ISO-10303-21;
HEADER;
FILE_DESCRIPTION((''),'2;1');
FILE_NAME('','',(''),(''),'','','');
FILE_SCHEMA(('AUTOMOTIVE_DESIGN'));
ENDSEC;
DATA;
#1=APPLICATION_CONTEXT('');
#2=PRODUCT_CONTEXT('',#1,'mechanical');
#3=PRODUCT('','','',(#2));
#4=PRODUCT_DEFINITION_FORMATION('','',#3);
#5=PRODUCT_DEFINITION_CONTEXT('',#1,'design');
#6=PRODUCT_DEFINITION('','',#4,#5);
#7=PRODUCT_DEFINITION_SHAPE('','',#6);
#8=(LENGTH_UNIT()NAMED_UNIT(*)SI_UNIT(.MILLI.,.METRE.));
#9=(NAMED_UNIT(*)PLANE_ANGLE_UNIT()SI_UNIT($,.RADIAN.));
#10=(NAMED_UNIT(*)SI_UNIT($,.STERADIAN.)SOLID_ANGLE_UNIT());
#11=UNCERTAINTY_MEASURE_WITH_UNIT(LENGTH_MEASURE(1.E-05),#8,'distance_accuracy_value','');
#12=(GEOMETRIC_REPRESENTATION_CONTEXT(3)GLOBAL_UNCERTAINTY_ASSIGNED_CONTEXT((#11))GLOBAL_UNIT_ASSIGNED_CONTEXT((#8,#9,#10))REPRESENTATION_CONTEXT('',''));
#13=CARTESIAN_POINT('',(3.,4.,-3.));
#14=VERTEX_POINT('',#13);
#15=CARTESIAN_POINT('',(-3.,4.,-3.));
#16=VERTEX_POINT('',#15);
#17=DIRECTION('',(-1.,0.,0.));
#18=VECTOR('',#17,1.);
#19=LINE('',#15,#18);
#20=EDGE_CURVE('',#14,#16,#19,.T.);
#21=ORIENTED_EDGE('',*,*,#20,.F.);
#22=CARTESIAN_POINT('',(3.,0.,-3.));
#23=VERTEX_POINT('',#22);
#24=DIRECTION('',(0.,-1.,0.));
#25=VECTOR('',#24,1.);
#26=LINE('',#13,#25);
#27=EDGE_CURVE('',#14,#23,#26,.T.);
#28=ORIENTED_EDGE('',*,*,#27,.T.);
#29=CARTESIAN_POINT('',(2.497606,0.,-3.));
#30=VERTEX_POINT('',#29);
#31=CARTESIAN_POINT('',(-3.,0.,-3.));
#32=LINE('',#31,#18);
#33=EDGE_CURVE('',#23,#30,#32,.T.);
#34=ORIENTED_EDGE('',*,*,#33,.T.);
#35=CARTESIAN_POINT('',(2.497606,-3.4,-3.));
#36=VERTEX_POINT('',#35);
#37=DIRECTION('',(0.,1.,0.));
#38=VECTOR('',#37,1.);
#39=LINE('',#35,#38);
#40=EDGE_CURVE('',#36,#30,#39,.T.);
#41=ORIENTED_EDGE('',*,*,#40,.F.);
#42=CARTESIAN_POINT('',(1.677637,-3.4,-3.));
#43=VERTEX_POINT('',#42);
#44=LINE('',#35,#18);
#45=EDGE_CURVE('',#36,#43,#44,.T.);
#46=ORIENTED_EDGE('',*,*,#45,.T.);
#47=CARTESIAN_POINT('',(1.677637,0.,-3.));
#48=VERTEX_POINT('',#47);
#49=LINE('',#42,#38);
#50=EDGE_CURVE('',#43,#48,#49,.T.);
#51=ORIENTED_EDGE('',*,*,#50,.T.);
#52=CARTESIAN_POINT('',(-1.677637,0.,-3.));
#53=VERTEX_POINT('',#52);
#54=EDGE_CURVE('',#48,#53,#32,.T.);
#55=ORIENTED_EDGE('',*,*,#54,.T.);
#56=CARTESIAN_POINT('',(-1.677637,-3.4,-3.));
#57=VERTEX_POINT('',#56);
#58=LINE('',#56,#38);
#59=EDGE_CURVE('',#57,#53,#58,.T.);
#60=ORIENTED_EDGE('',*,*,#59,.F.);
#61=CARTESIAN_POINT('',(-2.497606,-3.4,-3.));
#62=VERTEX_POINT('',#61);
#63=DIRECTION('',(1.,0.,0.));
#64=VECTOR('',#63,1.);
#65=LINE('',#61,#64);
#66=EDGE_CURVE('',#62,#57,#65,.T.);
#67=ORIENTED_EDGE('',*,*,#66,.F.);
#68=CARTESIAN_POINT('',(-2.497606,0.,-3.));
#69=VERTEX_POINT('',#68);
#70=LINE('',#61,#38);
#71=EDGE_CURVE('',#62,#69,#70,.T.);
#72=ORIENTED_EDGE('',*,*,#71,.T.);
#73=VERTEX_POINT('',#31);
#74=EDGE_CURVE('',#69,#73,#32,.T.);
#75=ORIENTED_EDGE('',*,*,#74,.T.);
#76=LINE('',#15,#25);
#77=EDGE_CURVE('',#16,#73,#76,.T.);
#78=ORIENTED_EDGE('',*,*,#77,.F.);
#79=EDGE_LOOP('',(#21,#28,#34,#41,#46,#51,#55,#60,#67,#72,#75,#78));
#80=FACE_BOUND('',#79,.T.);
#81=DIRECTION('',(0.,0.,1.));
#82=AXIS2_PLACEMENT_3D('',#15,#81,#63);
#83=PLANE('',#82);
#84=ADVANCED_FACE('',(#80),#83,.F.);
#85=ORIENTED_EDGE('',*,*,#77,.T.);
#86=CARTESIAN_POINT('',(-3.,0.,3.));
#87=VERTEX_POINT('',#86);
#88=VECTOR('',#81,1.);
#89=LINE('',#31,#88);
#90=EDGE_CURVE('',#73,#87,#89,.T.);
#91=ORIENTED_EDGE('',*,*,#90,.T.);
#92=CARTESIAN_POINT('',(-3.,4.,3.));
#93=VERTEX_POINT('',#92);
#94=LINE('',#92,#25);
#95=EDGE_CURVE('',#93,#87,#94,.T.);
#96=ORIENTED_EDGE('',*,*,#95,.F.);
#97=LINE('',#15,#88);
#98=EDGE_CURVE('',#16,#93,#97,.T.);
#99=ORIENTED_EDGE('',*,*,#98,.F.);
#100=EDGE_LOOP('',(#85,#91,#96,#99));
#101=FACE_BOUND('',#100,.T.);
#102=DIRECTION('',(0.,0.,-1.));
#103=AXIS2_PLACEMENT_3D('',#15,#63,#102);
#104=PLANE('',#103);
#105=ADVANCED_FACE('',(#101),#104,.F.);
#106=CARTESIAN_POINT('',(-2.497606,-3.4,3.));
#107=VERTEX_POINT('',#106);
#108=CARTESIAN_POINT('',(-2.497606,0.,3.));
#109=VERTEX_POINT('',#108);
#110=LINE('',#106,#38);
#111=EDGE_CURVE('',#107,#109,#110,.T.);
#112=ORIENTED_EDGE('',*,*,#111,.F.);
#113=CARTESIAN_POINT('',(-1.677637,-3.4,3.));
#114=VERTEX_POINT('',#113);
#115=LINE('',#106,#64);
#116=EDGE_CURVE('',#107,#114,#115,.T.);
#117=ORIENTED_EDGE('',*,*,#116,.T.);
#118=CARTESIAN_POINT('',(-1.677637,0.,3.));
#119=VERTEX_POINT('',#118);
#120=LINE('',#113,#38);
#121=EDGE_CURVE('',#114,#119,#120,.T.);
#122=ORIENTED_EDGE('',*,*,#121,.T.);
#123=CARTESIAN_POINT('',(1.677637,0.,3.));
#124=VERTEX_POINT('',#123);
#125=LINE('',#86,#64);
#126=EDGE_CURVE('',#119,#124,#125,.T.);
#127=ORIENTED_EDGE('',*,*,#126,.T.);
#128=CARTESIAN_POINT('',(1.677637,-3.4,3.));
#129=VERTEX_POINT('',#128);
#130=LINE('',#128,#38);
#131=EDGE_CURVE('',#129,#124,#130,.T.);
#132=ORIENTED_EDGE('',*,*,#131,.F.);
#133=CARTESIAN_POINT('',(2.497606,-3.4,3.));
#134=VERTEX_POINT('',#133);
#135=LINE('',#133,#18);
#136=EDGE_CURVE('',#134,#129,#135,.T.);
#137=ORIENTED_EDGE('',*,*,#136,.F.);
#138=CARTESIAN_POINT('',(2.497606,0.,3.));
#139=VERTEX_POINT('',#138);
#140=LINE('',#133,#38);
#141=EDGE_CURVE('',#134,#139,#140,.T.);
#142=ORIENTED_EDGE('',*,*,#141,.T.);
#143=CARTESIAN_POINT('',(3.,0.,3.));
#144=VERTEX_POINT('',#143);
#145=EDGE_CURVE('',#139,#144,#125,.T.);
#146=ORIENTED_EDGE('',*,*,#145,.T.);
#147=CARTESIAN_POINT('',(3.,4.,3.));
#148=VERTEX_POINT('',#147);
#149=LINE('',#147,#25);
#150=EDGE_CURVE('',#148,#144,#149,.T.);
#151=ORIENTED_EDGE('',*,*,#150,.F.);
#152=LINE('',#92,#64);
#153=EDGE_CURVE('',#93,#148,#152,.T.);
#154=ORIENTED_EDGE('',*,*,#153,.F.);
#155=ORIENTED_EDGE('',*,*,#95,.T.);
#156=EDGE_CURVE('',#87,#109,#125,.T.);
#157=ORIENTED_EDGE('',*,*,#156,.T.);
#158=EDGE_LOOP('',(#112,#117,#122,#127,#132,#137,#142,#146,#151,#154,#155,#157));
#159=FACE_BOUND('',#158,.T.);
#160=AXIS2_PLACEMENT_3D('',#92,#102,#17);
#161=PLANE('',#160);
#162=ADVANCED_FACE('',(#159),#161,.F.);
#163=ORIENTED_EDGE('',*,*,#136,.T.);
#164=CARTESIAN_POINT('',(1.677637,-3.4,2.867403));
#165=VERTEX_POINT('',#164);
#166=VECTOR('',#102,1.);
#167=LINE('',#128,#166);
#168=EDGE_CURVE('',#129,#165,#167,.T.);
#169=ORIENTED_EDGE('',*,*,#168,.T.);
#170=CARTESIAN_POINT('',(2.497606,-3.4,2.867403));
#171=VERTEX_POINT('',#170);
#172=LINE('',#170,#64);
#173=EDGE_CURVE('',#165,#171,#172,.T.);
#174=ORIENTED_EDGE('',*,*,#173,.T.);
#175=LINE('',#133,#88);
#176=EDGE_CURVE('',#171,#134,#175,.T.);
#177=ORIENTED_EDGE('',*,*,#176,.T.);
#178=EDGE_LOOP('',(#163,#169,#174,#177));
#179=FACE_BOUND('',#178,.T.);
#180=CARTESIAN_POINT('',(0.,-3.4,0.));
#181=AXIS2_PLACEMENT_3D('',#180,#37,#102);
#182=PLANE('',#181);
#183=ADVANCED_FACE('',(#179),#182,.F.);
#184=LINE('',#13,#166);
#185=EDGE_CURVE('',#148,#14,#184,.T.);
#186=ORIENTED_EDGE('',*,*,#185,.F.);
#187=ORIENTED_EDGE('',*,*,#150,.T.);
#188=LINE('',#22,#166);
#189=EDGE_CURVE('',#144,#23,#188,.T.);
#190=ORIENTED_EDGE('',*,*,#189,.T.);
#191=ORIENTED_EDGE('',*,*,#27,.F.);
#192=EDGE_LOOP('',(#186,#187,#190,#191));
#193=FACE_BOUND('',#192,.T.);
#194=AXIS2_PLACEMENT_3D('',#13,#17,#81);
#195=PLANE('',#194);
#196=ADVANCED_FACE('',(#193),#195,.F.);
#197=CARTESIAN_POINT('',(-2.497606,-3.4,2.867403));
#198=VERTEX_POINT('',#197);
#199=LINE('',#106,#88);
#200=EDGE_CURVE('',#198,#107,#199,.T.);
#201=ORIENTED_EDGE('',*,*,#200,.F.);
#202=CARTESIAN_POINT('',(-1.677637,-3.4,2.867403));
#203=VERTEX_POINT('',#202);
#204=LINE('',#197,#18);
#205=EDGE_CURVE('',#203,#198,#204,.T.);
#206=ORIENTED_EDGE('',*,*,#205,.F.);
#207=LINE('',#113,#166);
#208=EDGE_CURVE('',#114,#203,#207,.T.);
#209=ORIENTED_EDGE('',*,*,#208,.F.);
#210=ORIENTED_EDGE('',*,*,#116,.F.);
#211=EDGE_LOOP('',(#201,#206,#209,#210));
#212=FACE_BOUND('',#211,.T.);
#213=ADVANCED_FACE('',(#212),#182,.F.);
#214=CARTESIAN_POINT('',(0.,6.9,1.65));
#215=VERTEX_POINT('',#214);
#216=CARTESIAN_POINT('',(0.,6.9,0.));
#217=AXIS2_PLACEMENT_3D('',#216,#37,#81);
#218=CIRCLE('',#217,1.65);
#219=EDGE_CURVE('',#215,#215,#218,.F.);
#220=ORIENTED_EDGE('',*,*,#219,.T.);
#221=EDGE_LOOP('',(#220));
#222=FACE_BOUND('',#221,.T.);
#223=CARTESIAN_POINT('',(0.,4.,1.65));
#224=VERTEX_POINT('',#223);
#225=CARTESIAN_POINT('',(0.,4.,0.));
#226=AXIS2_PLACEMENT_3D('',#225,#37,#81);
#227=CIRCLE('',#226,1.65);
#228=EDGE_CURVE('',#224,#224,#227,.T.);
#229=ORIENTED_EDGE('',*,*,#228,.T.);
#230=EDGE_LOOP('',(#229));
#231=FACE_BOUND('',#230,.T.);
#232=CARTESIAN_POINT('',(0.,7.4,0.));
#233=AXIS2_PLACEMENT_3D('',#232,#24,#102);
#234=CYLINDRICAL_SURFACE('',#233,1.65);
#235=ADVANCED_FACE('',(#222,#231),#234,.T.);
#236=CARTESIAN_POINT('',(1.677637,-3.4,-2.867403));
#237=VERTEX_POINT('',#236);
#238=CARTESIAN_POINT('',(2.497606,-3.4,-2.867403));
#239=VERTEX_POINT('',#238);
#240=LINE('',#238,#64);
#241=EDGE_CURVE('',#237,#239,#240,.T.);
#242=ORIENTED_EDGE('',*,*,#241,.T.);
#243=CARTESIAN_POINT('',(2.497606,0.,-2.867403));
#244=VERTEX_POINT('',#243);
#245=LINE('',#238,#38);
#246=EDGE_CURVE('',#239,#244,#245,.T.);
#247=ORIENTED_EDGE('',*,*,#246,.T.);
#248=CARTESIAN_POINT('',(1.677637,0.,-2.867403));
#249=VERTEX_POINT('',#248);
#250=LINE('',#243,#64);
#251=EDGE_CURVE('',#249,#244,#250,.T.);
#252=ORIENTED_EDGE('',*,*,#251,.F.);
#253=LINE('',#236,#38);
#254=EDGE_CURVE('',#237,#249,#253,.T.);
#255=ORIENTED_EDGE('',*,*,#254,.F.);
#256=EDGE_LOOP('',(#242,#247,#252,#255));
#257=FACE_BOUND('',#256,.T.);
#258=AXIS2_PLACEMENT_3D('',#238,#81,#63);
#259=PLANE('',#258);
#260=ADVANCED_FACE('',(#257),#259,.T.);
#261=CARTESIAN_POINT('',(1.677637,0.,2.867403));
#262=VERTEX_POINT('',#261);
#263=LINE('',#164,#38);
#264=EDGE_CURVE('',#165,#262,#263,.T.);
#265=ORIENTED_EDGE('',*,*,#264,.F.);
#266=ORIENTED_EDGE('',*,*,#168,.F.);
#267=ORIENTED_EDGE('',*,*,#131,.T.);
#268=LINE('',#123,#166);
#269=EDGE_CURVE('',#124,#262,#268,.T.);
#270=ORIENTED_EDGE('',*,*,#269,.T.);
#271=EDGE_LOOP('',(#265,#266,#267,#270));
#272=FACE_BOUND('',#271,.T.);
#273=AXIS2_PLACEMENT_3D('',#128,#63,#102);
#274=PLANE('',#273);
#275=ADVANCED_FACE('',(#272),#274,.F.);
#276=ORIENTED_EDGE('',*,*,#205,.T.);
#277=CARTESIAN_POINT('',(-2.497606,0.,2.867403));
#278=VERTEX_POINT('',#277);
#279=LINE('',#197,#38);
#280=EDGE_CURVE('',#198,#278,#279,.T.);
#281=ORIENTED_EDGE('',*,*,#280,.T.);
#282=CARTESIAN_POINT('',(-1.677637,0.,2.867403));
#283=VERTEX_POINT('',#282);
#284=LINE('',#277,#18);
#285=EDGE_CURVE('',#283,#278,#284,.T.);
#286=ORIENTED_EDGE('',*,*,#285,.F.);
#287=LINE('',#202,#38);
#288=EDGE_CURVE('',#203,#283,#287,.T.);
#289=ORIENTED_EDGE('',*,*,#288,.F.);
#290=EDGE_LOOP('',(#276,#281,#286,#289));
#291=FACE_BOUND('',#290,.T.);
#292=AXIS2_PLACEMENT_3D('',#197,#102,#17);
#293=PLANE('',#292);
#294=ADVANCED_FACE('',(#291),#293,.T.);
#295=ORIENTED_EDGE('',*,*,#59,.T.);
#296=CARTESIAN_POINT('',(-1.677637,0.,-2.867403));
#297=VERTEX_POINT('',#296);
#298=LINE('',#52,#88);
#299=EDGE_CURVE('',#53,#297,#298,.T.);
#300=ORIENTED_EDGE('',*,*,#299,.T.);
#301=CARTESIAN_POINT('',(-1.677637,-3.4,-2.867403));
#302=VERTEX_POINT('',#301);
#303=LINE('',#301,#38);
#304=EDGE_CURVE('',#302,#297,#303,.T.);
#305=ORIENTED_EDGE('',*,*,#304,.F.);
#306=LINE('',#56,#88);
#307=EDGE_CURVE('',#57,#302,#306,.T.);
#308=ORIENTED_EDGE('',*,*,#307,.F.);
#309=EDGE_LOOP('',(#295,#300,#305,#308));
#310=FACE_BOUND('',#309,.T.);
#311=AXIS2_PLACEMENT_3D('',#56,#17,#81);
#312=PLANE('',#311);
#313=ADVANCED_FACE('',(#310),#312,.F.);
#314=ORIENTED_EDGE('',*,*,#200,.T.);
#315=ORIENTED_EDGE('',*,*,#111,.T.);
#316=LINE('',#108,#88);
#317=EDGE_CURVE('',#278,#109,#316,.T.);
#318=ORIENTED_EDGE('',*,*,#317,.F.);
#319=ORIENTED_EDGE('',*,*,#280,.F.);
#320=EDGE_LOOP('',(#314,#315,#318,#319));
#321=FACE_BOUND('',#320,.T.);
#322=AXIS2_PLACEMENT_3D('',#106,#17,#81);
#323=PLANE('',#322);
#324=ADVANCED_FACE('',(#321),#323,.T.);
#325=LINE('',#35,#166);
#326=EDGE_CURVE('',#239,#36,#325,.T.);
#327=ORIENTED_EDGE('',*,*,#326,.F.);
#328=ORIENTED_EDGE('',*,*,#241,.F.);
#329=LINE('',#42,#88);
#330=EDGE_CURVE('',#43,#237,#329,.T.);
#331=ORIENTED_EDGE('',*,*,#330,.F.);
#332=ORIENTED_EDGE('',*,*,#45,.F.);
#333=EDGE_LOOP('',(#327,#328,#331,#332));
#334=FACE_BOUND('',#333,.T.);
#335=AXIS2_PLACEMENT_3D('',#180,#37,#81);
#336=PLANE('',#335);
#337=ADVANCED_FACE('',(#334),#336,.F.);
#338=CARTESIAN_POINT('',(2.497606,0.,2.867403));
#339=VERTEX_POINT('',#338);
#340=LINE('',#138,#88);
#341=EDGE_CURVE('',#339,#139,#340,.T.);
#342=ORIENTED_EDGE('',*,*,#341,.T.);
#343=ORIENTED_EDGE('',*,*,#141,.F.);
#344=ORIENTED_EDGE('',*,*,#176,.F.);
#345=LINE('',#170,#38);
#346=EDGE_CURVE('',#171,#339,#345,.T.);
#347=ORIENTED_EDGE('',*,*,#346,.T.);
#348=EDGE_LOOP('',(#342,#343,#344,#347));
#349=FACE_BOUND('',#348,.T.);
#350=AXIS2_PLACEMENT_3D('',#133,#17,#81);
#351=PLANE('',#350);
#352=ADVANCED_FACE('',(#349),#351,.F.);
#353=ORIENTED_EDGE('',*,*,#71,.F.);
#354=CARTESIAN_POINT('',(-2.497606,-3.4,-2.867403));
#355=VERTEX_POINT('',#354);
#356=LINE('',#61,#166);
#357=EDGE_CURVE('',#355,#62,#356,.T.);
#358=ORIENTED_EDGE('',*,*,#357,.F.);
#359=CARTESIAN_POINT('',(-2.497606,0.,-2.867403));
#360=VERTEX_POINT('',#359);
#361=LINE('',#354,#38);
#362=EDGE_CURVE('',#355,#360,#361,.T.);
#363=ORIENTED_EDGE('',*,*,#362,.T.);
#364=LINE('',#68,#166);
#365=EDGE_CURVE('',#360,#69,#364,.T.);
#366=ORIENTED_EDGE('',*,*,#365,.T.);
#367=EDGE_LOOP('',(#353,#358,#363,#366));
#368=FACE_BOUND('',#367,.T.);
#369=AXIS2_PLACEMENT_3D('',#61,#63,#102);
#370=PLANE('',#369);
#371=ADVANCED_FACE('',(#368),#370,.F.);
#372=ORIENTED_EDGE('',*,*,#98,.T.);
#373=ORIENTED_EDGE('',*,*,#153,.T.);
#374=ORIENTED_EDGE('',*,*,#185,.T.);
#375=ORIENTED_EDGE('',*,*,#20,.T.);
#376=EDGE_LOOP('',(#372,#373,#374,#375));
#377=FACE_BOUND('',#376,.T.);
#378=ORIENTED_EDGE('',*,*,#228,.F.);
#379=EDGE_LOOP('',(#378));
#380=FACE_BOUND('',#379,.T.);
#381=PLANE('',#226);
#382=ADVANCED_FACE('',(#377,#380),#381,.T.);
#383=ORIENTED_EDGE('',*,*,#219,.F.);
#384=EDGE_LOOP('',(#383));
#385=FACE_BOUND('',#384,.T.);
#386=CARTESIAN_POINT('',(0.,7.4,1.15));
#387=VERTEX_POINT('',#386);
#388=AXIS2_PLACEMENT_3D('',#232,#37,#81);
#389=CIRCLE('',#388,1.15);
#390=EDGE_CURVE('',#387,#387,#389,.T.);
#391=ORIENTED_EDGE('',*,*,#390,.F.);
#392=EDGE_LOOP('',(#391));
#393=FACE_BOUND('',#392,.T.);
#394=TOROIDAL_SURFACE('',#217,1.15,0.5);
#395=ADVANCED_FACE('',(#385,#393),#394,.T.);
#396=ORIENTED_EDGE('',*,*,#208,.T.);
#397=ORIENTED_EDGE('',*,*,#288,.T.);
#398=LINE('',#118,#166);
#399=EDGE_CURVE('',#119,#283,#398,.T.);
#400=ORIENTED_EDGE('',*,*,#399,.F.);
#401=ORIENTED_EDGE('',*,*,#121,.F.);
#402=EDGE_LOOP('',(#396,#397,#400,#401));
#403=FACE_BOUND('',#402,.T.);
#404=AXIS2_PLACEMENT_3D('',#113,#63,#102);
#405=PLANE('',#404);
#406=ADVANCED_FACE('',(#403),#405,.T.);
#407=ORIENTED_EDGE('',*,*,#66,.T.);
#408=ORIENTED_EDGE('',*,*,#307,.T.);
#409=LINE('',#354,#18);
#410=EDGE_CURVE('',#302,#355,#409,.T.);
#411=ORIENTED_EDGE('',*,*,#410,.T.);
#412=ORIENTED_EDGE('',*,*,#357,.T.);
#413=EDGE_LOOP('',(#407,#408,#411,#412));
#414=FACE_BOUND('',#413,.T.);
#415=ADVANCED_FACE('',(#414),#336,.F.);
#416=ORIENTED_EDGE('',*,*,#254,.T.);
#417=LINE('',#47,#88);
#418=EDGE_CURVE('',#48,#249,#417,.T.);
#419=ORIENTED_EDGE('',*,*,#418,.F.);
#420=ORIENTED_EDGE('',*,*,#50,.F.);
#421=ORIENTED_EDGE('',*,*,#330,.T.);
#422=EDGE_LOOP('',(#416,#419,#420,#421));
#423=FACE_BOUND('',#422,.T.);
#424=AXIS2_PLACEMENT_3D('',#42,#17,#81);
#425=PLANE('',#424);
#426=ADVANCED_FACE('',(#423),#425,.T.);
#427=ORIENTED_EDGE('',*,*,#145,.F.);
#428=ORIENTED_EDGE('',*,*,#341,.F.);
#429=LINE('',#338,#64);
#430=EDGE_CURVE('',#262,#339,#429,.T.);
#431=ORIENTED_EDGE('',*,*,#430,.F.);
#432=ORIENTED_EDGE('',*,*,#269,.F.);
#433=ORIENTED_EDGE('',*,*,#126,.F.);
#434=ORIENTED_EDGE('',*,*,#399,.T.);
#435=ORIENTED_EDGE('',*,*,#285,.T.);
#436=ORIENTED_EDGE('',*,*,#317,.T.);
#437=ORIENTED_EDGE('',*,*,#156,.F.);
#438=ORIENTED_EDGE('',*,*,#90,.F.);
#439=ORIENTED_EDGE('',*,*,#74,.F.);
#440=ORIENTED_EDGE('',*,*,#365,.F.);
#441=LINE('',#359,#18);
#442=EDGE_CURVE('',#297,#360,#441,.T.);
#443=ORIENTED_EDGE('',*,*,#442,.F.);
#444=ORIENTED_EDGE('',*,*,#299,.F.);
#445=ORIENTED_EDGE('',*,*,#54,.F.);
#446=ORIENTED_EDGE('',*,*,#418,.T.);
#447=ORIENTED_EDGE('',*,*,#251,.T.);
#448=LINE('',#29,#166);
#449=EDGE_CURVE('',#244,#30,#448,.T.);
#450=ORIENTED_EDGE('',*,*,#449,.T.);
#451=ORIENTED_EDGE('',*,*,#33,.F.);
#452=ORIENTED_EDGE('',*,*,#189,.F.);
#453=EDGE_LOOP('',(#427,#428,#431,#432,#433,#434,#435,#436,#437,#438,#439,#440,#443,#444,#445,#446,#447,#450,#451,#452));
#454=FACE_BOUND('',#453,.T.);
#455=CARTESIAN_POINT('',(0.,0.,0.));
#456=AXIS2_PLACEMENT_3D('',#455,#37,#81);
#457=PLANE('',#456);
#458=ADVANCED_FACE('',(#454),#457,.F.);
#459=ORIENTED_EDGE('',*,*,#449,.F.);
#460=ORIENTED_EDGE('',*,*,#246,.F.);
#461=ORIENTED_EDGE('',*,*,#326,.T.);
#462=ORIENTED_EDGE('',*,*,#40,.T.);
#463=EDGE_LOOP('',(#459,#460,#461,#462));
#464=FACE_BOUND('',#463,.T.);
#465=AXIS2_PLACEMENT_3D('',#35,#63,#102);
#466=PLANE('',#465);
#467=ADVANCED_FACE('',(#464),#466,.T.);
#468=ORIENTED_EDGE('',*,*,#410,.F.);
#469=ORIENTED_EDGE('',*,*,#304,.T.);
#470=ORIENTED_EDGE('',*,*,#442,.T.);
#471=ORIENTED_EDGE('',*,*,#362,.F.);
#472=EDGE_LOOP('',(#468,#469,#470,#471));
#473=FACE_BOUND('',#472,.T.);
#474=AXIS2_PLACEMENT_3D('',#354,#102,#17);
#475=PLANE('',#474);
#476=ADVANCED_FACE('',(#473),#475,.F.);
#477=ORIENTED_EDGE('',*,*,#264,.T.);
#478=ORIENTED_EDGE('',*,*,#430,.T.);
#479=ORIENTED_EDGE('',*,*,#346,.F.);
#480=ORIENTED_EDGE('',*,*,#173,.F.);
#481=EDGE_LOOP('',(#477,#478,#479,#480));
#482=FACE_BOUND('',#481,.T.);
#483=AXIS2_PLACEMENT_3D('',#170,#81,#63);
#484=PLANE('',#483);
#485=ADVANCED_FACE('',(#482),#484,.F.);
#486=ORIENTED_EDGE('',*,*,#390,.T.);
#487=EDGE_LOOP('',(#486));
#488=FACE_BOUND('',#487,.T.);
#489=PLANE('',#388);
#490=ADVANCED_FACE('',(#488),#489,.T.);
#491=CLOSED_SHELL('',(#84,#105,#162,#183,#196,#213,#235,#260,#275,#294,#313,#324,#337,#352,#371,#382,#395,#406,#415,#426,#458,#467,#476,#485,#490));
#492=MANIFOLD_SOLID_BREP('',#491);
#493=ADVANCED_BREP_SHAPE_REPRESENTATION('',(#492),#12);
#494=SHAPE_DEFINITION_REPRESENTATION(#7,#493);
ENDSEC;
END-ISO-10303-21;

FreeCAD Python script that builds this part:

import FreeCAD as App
import Part
import Sketcher

V = App.Vector
Q = App.Units.Quantity


def edges_at(feature, points):
    """Names of the edges that pass closest to the given points."""
    edges = feature.Shape.Edges
    near = lambda p: min(range(len(edges)), key=lambda i: edges[i].distToShape(Part.Vertex(*p))[0])
    return sorted({f"Edge{near(p) + 1}" for p in points})


def add_polygon(sketch, points):
    """Adds a closed chain of lines whose ends are joined by coincident constraints."""
    first, n = sketch.GeometryCount, len(points)
    for a, b in zip(points, points[1:] + points[:1]):
        sketch.addGeometry(Part.LineSegment(App.Vector(*a, 0), App.Vector(*b, 0)), False)
    for i in range(n):
        sketch.addConstraint(Sketcher.Constraint("Coincident", first + i, 2, first + (i + 1) % n, 1))

doc = App.newDocument("Part")
body = doc.addObject("PartDesign::Body", "Body")

sketch1 = body.newObject("Sketcher::SketchObject", "Sketch")
sketch1.AttachmentSupport = (doc.getObject("XZ_Plane"), [""])
sketch1.MapMode = "FlatFace"
add_polygon(sketch1, [(-3, -3), (-3, 3), (3, 3), (3, -3)])
sketch1.addConstraint([
    Sketcher.Constraint("Vertical", 0),
    Sketcher.Constraint("Horizontal", 1),
    Sketcher.Constraint("Vertical", 2),
    Sketcher.Constraint("Horizontal", 3),
    Sketcher.Constraint("Symmetric", 0, 2, 2, 2, -1, 1),
    Sketcher.Constraint("Equal", 3, 0),
    Sketcher.Constraint("DistanceX", 1, 1, 1, 2, Q("6 mm")),
])
pad1 = body.newObject("PartDesign::Pad", "Pad")
pad1.Profile = sketch1
pad1.Length = 4
pad1.Reversed = True

sketch2 = body.newObject("Sketcher::SketchObject", "Sketch001")
sketch2.AttachmentSupport = (doc.getObject("XZ_Plane"), [""])
sketch2.MapMode = "FlatFace"
sketch2.AttachmentOffset = App.Placement(V(0, 0, -4), App.Rotation())
sketch2.addGeometry(Part.Circle(V(0, 0, 0), V(0, 0, 1), 1.6), False)
sketch2.addConstraint([
    Sketcher.Constraint("Coincident", 0, 3, -1, 1),
    Sketcher.Constraint("Diameter", 0, Q("3.3 mm")),
])
pad2 = body.newObject("PartDesign::Pad", "Pad001")
pad2.Profile = sketch2
pad2.Length = 3.4
pad2.Reversed = True
doc.recompute()

fillet = body.newObject("PartDesign::Fillet", "Fillet")
fillet.Base = (pad2, edges_at(pad2, [(0, 7.4, -1.65)]))
fillet.Radius = 0.5

sketch3 = body.newObject("Sketcher::SketchObject", "Sketch002")
sketch3.AttachmentSupport = (doc.getObject("XZ_Plane"), [""])
sketch3.MapMode = "FlatFace"
add_polygon(sketch3, [(-2.5, -2.87), (-2.5, -3), (-1.68, -3), (-1.68, -2.87)])
sketch3.addConstraint([
    Sketcher.Constraint("Vertical", 0),
    Sketcher.Constraint("Horizontal", 1),
    Sketcher.Constraint("Vertical", 2),
    Sketcher.Constraint("Horizontal", 3),
    Sketcher.Constraint("DistanceY", 0, 2, -1, 1, Q("3 mm")),
    Sketcher.Constraint("DistanceX", 1, 1, 1, 2, Q("0.819969 mm")),
    Sketcher.Constraint("DistanceY", 0, 2, 0, 1, Q("0.132597 mm")),
    Sketcher.Constraint("DistanceX", 0, 2, -1, 1, Q("2.497606 mm")),
])
pad3 = body.newObject("PartDesign::Pad", "Pad002")
pad3.Profile = sketch3
pad3.Length = 3.4
doc.recompute()

mirrored = body.newObject("PartDesign::Mirrored", "Mirrored")
mirrored.Originals = [pad3]
mirrored.MirrorPlane = (doc.getObject("YZ_Plane"), [""])
body.Tip = mirrored
doc.recompute()

mirrored2 = body.newObject("PartDesign::Mirrored", "Mirrored001")
mirrored2.Originals = [pad3]
mirrored2.MirrorPlane = (doc.getObject("XY_Plane"), [""])
body.Tip = mirrored2

sketch4 = body.newObject("Sketcher::SketchObject", "Sketch003")
sketch4.AttachmentSupport = (doc.getObject("XZ_Plane"), [""])
sketch4.MapMode = "FlatFace"
add_polygon(sketch4, [(2.5, 2.87), (2.5, 3), (1.68, 3), (1.68, 2.87)])
sketch4.addConstraint([
    Sketcher.Constraint("Vertical", 0),
    Sketcher.Constraint("Horizontal", 1),
    Sketcher.Constraint("Vertical", 2),
    Sketcher.Constraint("Horizontal", 3),
    Sketcher.Constraint("DistanceY", -1, 1, 0, 2, Q("3 mm")),
    Sketcher.Constraint("DistanceX", 1, 2, 1, 1, Q("0.819969 mm")),
    Sketcher.Constraint("DistanceY", 0, 1, 0, 2, Q("0.132597 mm")),
    Sketcher.Constraint("DistanceX", -1, 1, 0, 2, Q("2.497606 mm")),
])
pad4 = body.newObject("PartDesign::Pad", "Pad003")
pad4.Profile = sketch4
pad4.Length = 3.4

doc.recompute()
